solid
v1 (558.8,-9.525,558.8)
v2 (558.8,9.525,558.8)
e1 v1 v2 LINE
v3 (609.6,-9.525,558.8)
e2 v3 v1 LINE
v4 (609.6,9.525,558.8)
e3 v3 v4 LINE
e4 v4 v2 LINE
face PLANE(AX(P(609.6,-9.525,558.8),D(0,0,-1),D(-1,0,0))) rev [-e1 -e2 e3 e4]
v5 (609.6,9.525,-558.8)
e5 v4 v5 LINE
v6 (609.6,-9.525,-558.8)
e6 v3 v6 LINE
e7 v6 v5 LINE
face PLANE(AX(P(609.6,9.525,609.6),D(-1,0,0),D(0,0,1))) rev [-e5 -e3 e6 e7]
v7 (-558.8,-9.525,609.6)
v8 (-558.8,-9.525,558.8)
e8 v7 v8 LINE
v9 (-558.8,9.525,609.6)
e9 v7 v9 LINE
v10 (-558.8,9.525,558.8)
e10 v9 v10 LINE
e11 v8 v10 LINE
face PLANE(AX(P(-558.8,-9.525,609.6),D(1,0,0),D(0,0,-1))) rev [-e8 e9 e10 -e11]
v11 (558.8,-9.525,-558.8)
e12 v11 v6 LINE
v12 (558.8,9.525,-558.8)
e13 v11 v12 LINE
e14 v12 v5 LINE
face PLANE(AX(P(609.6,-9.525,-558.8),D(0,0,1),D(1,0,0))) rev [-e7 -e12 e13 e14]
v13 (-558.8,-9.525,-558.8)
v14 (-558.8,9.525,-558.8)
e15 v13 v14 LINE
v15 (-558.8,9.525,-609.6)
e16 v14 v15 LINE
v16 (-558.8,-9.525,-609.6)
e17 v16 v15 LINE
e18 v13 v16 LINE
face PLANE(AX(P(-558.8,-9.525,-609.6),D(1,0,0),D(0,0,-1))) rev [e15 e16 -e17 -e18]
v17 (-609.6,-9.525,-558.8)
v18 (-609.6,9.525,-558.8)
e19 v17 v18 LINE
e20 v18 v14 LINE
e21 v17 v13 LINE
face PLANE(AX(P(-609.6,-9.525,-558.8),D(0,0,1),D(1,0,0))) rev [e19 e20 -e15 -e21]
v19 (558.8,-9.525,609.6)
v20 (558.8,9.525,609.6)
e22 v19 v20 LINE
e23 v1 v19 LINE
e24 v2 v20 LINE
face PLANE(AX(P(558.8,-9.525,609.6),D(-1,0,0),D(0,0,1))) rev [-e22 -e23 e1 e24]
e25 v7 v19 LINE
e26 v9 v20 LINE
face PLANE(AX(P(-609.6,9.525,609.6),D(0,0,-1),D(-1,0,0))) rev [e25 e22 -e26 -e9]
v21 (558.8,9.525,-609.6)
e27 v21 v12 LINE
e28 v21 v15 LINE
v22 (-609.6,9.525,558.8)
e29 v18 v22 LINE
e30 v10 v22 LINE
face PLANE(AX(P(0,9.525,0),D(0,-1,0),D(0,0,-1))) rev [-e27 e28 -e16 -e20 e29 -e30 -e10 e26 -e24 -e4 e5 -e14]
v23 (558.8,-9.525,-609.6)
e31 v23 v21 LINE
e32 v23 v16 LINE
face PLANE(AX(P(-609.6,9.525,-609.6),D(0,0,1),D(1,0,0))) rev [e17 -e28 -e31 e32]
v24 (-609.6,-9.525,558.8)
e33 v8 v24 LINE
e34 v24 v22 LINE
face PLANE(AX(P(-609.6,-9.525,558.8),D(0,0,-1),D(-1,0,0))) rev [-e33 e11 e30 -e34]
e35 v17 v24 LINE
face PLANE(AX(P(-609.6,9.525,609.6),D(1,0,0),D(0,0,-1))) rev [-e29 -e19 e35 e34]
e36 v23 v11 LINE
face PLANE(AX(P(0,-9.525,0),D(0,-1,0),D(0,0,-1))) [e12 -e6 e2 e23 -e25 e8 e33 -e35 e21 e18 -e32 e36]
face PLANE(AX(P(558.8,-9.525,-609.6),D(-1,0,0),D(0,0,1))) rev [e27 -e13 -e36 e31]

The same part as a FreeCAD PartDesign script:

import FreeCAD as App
import Part
import Sketcher
Q = App.Units.Quantity

doc = App.newDocument("Part")
body = doc.addObject("PartDesign::Body", "Body")

# Sketch on XZ plane
sketch1 = body.newObject("Sketcher::SketchObject", "Sketch")
sketch1.AttachmentSupport = (doc.getObject("XZ_Plane"), [""])
sketch1.MapMode = "FlatFace"
sketch1.addGeometry([
    Part.LineSegment(App.Vector(-610, -610, 0), App.Vector(-610, 610, 0)),
    Part.LineSegment(App.Vector(-610, 610, 0), App.Vector(610, 610, 0)),
    Part.LineSegment(App.Vector(610, 610, 0), App.Vector(610, -610, 0)),
    Part.LineSegment(App.Vector(610, -610, 0), App.Vector(-610, -610, 0)),
], False)
sketch1.addConstraint([
    Sketcher.Constraint("Coincident", 0, 2, 1, 1),
    Sketcher.Constraint("Coincident", 1, 2, 2, 1),
    Sketcher.Constraint("Coincident", 2, 2, 3, 1),
    Sketcher.Constraint("Coincident", 3, 2, 0, 1),
    Sketcher.Constraint("Vertical", 0),
    Sketcher.Constraint("Horizontal", 1),
    Sketcher.Constraint("Vertical", 2),
    Sketcher.Constraint("Horizontal", 3),
    Sketcher.Constraint("Symmetric", 0, 2, 2, 2, -1, 1),
    Sketcher.Constraint("Equal", 3, 0),
    Sketcher.Constraint("DistanceX", 1, 1, 1, 2, Q("48 in")),
])
pad1 = body.newObject("PartDesign::Pad", "Pad")
pad1.Profile = sketch1
pad1.Length = Q("0.75 in")
pad1.Midplane = True

# Sketch on XZ plane
sketch2 = body.newObject("Sketcher::SketchObject", "Sketch001")
sketch2.AttachmentSupport = (doc.getObject("XZ_Plane"), [""])
sketch2.MapMode = "FlatFace"
sketch2.AttachmentOffset = App.Placement(App.Vector(0, 0, -0.375 * 25.4), App.Rotation())
sketch2.addGeometry([
    Part.LineSegment(App.Vector(-610, -610, 0), App.Vector(-610, -559, 0)),  # 0
    Part.LineSegment(App.Vector(-610, -559, 0), App.Vector(-559, -559, 0)),  # 1
    Part.LineSegment(App.Vector(-559, -559, 0), App.Vector(-559, -610, 0)),  # 2
    Part.LineSegment(App.Vector(-559, -610, 0), App.Vector(-610, -610, 0)),  # 3
    Part.LineSegment(App.Vector(559, -610, 0), App.Vector(559, -559, 0)),  # 4
    Part.LineSegment(App.Vector(559, -559, 0), App.Vector(610, -559, 0)),  # 5
    Part.LineSegment(App.Vector(610, -559, 0), App.Vector(610, -610, 0)),  # 6
    Part.LineSegment(App.Vector(610, -610, 0), App.Vector(559, -610, 0)),  # 7
    Part.LineSegment(App.Vector(559, 559, 0), App.Vector(559, 610, 0)),  # 8
    Part.LineSegment(App.Vector(559, 610, 0), App.Vector(610, 610, 0)),  # 9
    Part.LineSegment(App.Vector(610, 610, 0), App.Vector(610, 559, 0)),  # 10
    Part.LineSegment(App.Vector(610, 559, 0), App.Vector(559, 559, 0)),  # 11
    Part.LineSegment(App.Vector(-610, 559, 0), App.Vector(-610, 610, 0)),  # 12
    Part.LineSegment(App.Vector(-610, 610, 0), App.Vector(-559, 610, 0)),  # 13
    Part.LineSegment(App.Vector(-559, 610, 0), App.Vector(-559, 559, 0)),  # 14
    Part.LineSegment(App.Vector(-559, 559, 0), App.Vector(-610, 559, 0)),  # 15
], False)
sketch2.addConstraint([
    Sketcher.Constraint("Coincident", 0, 2, 1, 1),
    Sketcher.Constraint("Coincident", 1, 2, 2, 1),
    Sketcher.Constraint("Coincident", 2, 2, 3, 1),
    Sketcher.Constraint("Coincident", 3, 2, 0, 1),
    Sketcher.Constraint("Coincident", 4, 2, 5, 1),
    Sketcher.Constraint("Coincident", 5, 2, 6, 1),
    Sketcher.Constraint("Coincident", 6, 2, 7, 1),
    Sketcher.Constraint("Coincident", 7, 2, 4, 1),
    Sketcher.Constraint("Coincident", 8, 2, 9, 1),
    Sketcher.Constraint("Coincident", 9, 2, 10, 1),
    Sketcher.Constraint("Coincident", 10, 2, 11, 1),
    Sketcher.Constraint("Coincident", 11, 2, 8, 1),
    Sketcher.Constraint("Coincident", 12, 2, 13, 1),
    Sketcher.Constraint("Coincident", 13, 2, 14, 1),
    Sketcher.Constraint("Coincident", 14, 2, 15, 1),
    Sketcher.Constraint("Coincident", 15, 2, 12, 1),
    Sketcher.Constraint("Vertical", 0),
    Sketcher.Constraint("Horizontal", 1),
    Sketcher.Constraint("Vertical", 2),
    Sketcher.Constraint("Horizontal", 3),
    Sketcher.Constraint("Vertical", 4),
    Sketcher.Constraint("Horizontal", 5),
    Sketcher.Constraint("Vertical", 6),
    Sketcher.Constraint("Horizontal", 7),
    Sketcher.Constraint("Vertical", 8),
    Sketcher.Constraint("Horizontal", 9),
    Sketcher.Constraint("Vertical", 10),
    Sketcher.Constraint("Horizontal", 11),
    Sketcher.Constraint("Vertical", 12),
    Sketcher.Constraint("Horizontal", 13),
    Sketcher.Constraint("Vertical", 14),
    Sketcher.Constraint("Horizontal", 15),
    Sketcher.Constraint("Symmetric", 2, 2, 8, 2, -1, 1),
    Sketcher.Constraint("Symmetric", 0, 2, 10, 2, -1, 1),
    Sketcher.Constraint("Symmetric", 6, 2, 12, 2, -1, 1),
    Sketcher.Constraint("Symmetric", 4, 2, 14, 2, -1, 1),
    Sketcher.Constraint("Symmetric", 1, 2, 4, 2, -2),
    Sketcher.Constraint("Symmetric", 3, 2, 6, 2, -2),
    Sketcher.Constraint("Equal", 15, 0),
    Sketcher.Constraint("DistanceX", 1, 1, 1, 2, Q("2 in")),
    Sketcher.Constraint("DistanceX", 0, 2, -1, 1, Q("24 in")),
    Sketcher.Constraint("DistanceY", 0, 2, -1, 1, Q("22 in")),
])
pocket1 = body.newObject("PartDesign::Pocket", "Pocket")
pocket1.Profile = sketch2
pocket1.Type = "ThroughAll"
pocket1.Reversed = True

doc.recompute()
